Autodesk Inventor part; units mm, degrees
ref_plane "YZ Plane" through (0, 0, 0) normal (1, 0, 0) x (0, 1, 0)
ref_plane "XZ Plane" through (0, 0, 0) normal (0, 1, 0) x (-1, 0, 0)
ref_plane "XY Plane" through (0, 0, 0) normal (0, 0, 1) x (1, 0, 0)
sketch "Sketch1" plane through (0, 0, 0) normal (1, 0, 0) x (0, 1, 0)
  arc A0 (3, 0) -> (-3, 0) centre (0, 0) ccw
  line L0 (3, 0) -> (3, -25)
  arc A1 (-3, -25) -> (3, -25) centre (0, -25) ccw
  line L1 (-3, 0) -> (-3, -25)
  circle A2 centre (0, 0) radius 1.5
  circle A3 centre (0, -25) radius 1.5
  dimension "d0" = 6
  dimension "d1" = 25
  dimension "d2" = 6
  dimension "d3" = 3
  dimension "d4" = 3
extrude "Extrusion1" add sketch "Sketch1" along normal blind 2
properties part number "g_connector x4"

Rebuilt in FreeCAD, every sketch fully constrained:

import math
import FreeCAD as App
import Part
import Sketcher

V = App.Vector

doc = App.newDocument("Part")
body = doc.addObject("PartDesign::Body", "Body")

# Sketch on YZ plane
sketch1 = body.newObject("Sketcher::SketchObject", "Sketch")
sketch1.AttachmentSupport = (doc.getObject("YZ_Plane"), [""])
sketch1.MapMode = "FlatFace"
sketch1.addGeometry([
    Part.LineSegment(V(3, -25, 0), V(3, 0, 0)),  # 0
    Part.ArcOfCircle(Part.Circle(V(0, 0, 0), V(0, 0, 1), 3), math.radians(0), math.radians(180)),  # 1
    Part.LineSegment(V(-3, 0, 0), V(-3, -25, 0)),  # 2
    Part.ArcOfCircle(Part.Circle(V(0, -25, 0), V(0, 0, 1), 3), math.radians(180), math.radians(360)),  # 3
    Part.Circle(V(0, -25, 0), V(0, 0, 1), 1.5),  # 4
    Part.Circle(V(0, 0, 0), V(0, 0, 1), 1.5),  # 5
], False)
sketch1.addConstraint([
    Sketcher.Constraint("Tangent", 0, 2, 1, 1),
    Sketcher.Constraint("Tangent", 1, 2, 2, 1),
    Sketcher.Constraint("Tangent", 2, 2, 3, 1),
    Sketcher.Constraint("Tangent", 3, 2, 0, 1),
    Sketcher.Constraint("Vertical", 0),
    Sketcher.Constraint("Vertical", 2),
    Sketcher.Constraint("Coincident", 1, 3, -1, 1),
    Sketcher.Constraint("Coincident", 5, 3, -1, 1),
    Sketcher.Constraint("Coincident", 4, 3, 3, 3),
    Sketcher.Constraint("Equal", 4, 5),
    Sketcher.Constraint("Diameter", 4, 3.0),
    Sketcher.Constraint("Radius", 1, 3.0),
    Sketcher.Constraint("DistanceY", 0, 1, 0, 2, 25.0),
])
pad1 = body.newObject("PartDesign::Pad", "Pad")
pad1.Profile = sketch1
pad1.Length = 2

doc.recompute()
